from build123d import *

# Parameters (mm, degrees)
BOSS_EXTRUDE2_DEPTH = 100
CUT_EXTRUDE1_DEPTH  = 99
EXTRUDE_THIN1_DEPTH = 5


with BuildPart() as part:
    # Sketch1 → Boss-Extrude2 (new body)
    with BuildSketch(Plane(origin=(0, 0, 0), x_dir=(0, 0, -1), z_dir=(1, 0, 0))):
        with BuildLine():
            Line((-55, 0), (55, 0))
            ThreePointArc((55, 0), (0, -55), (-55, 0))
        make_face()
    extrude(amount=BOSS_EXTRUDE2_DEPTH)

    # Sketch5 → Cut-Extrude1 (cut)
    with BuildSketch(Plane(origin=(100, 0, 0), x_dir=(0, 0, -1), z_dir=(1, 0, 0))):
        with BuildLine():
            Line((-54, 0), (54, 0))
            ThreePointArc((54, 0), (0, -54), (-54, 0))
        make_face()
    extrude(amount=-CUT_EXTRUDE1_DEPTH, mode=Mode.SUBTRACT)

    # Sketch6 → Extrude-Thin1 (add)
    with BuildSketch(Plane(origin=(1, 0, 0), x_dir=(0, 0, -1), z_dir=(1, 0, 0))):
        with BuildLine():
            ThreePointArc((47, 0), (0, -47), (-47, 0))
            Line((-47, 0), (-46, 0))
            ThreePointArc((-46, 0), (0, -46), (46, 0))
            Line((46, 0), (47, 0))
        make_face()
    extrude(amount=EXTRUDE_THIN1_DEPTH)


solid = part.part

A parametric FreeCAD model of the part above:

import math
import FreeCAD as App
import Part
import Sketcher
from FreeCAD import Vector
Q = App.Units.Quantity

doc = App.newDocument("Part")
body = doc.addObject("PartDesign::Body", "Body")

sketch1 = body.newObject("Sketcher::SketchObject", "Sketch")
sketch1.AttachmentSupport = (doc.getObject("YZ_Plane"), [""])
sketch1.MapMode = "FlatFace"
sketch1.addGeometry([
    Part.LineSegment(Vector(0, -55, 0), Vector(0, 55, 0)),
    Part.ArcOfCircle(Part.Circle(Vector(0, 0, 0), Vector(0, 0, 1), 55), math.radians(90), math.radians(270)),
], False)
sketch1.addConstraint([
    Sketcher.Constraint("Coincident", 0, 1, 1, 2),
    Sketcher.Constraint("Coincident", 1, 1, 0, 2),
    Sketcher.Constraint("Vertical", 0),
    Sketcher.Constraint("Coincident", 1, 3, -1, 1),
    Sketcher.Constraint("PointOnObject", 0, 1, -2),
    Sketcher.Constraint("Radius", 1, Q("55 mm")),
])
pad1 = body.newObject("PartDesign::Pad", "Pad")
pad1.Profile = sketch1
pad1.Length = 100

sketch2 = body.newObject("Sketcher::SketchObject", "Sketch001")
sketch2.AttachmentSupport = (doc.getObject("YZ_Plane"), [""])
sketch2.MapMode = "FlatFace"
sketch2.AttachmentOffset = App.Placement(Vector(0, 0, 100), App.Rotation())
sketch2.addGeometry([
    Part.LineSegment(Vector(0, -54, 0), Vector(0, 54, 0)),
    Part.ArcOfCircle(Part.Circle(Vector(0, 0, 0), Vector(0, 0, 1), 54), math.radians(90), math.radians(270)),
], False)
sketch2.addConstraint([
    Sketcher.Constraint("Coincident", 0, 1, 1, 2),
    Sketcher.Constraint("Coincident", 1, 1, 0, 2),
    Sketcher.Constraint("Vertical", 0),
    Sketcher.Constraint("Coincident", 1, 3, -1, 1),
    Sketcher.Constraint("PointOnObject", 0, 1, -2),
    Sketcher.Constraint("Radius", 1, Q("54 mm")),
])
pocket1 = body.newObject("PartDesign::Pocket", "Pocket")
pocket1.Profile = sketch2
pocket1.Length = 99

sketch3 = body.newObject("Sketcher::SketchObject", "Sketch002")
sketch3.AttachmentSupport = (doc.getObject("YZ_Plane"), [""])
sketch3.MapMode = "FlatFace"
sketch3.AttachmentOffset = App.Placement(Vector(0, 0, 1), App.Rotation())
sketch3.addGeometry([
    Part.ArcOfCircle(Part.Circle(Vector(0, 0, 0), Vector(0, 0, 1), 47), math.radians(90), math.radians(270)),
    Part.LineSegment(Vector(0, -47, 0), Vector(0, -46, 0)),
    Part.ArcOfCircle(Part.Circle(Vector(0, 0, 0), Vector(0, 0, 1), 46), math.radians(90), math.radians(270)),
    Part.LineSegment(Vector(0, 46, 0), Vector(0, 47, 0)),
], False)
sketch3.addConstraint([
    Sketcher.Constraint("Coincident", 0, 2, 1, 1),
    Sketcher.Constraint("Coincident", 1, 2, 2, 2),
    Sketcher.Constraint("Coincident", 2, 1, 3, 1),
    Sketcher.Constraint("Coincident", 3, 2, 0, 1),
    Sketcher.Constraint("Vertical", 1),
    Sketcher.Constraint("Vertical", 3),
    Sketcher.Constraint("Coincident", 0, 3, -1, 1),
    Sketcher.Constraint("Coincident", 2, 3, -1, 1),
    Sketcher.Constraint("PointOnObject", 0, 2, -2),
    Sketcher.Constraint("PointOnObject", 2, 1, -2),
    Sketcher.Constraint("Radius", 0, Q("47 mm")),
    Sketcher.Constraint("Radius", 2, Q("46 mm")),
])
pad2 = body.newObject("PartDesign::Pad", "Pad001")
pad2.Profile = sketch3
pad2.Length = 5

doc.recompute()
